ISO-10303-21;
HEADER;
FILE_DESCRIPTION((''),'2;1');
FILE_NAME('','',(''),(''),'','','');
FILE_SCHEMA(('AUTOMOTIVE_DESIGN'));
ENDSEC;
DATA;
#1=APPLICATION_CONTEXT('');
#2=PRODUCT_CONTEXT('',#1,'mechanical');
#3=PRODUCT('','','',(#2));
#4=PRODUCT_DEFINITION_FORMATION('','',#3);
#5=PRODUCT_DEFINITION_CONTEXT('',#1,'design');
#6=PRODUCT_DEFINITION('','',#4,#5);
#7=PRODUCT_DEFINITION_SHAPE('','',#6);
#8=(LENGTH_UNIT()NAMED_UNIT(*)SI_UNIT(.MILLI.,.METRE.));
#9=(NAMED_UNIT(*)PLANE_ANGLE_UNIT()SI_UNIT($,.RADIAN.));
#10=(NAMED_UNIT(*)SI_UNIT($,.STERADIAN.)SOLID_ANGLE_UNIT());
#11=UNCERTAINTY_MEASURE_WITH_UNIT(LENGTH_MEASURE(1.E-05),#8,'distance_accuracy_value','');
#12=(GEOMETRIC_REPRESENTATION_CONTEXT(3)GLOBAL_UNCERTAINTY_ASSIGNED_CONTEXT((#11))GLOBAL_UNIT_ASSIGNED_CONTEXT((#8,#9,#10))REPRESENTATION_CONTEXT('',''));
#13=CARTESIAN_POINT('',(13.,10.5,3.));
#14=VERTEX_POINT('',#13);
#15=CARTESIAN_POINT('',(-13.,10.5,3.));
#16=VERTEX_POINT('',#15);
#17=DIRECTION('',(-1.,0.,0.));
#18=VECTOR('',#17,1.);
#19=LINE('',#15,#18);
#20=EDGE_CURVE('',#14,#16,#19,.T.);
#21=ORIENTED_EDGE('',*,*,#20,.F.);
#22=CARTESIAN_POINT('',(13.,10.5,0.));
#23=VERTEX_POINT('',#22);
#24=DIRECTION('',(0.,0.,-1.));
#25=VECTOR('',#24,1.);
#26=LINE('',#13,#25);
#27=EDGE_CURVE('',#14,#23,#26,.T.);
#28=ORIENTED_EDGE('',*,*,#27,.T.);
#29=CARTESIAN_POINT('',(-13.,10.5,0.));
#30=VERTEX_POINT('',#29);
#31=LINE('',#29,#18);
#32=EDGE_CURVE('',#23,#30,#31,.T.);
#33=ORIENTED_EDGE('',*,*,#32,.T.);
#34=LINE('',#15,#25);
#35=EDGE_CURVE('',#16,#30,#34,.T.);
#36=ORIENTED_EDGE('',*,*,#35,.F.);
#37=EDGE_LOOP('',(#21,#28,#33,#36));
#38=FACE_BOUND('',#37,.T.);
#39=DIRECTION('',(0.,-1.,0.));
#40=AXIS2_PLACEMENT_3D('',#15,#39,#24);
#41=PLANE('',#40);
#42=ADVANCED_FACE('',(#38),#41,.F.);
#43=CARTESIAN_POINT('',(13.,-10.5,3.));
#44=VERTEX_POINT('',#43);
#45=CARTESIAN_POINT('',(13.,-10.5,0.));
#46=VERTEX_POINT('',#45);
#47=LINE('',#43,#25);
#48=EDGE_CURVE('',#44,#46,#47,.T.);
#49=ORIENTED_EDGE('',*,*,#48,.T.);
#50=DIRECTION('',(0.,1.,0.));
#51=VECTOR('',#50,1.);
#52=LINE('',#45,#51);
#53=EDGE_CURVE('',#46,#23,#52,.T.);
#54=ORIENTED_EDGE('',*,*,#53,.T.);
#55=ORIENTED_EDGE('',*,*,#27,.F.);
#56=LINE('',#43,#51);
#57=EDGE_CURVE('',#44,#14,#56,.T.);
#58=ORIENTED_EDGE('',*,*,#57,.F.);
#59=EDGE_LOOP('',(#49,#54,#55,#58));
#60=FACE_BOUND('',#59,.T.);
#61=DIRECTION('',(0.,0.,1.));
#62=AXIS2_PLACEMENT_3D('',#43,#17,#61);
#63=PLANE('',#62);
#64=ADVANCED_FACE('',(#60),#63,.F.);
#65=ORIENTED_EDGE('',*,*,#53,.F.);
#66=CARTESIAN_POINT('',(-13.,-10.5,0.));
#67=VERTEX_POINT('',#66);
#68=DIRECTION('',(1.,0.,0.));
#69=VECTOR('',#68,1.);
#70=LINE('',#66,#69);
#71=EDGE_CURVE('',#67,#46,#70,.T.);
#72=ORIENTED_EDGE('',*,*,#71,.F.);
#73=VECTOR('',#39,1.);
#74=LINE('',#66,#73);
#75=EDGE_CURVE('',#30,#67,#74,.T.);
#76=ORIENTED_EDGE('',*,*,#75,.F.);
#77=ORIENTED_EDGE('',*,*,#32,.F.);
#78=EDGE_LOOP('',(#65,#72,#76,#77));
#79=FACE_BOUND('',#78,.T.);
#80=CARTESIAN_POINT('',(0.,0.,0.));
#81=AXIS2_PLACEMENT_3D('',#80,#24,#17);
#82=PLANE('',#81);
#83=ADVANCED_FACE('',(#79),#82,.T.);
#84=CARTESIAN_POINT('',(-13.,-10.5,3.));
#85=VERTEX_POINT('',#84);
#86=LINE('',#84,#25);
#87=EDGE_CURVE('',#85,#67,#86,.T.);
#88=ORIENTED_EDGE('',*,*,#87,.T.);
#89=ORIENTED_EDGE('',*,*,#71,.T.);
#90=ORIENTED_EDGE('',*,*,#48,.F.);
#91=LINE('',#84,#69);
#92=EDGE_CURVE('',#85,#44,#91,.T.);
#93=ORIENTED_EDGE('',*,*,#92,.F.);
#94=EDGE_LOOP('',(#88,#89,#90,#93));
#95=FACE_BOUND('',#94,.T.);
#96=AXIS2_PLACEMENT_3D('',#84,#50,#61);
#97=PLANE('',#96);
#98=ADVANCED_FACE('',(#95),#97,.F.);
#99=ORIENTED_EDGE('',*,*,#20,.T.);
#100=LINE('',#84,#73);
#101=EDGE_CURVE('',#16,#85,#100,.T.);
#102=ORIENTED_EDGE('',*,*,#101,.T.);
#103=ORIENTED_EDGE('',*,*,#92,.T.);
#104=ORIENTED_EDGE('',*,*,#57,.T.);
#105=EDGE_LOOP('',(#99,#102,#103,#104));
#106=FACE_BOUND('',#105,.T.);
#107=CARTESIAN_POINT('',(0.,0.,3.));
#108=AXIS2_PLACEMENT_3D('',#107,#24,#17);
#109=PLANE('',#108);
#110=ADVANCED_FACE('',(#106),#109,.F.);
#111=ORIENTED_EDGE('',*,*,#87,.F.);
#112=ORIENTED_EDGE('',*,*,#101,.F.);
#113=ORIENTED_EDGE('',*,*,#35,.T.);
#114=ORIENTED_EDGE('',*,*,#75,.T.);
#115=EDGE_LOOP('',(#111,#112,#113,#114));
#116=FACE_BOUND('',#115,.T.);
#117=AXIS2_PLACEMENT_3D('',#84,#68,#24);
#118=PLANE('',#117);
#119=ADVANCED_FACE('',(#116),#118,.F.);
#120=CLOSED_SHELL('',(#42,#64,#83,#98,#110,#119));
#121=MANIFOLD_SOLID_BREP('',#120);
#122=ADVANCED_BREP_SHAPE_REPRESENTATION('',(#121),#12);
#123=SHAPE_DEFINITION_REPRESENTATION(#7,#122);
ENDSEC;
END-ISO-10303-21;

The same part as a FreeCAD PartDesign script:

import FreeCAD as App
import Part
import Sketcher

V = App.Vector
Q = App.Units.Quantity

doc = App.newDocument("Part")
body = doc.addObject("PartDesign::Body", "Body")

# Sketch on XY plane
sketch1 = body.newObject("Sketcher::SketchObject", "Sketch")
sketch1.AttachmentSupport = (doc.getObject("XY_Plane"), [""])
sketch1.MapMode = "FlatFace"
sketch1.addGeometry(Part.LineSegment(V(-13, 10.5, 0), V(-13, -10.5, 0)), False)
sketch1.addGeometry(Part.LineSegment(V(-13, -10.5, 0), V(13, -10.5, 0)), False)
sketch1.addGeometry(Part.LineSegment(V(13, -10.5, 0), V(13, 10.5, 0)), False)
sketch1.addGeometry(Part.LineSegment(V(13, 10.5, 0), V(-13, 10.5, 0)), False)
sketch1.addConstraint(Sketcher.Constraint("Coincident", 0, 2, 1, 1))
sketch1.addConstraint(Sketcher.Constraint("Coincident", 1, 2, 2, 1))
sketch1.addConstraint(Sketcher.Constraint("Coincident", 2, 2, 3, 1))
sketch1.addConstraint(Sketcher.Constraint("Coincident", 3, 2, 0, 1))
sketch1.addConstraint(Sketcher.Constraint("Vertical", 0))
sketch1.addConstraint(Sketcher.Constraint("Horizontal", 1))
sketch1.addConstraint(Sketcher.Constraint("Vertical", 2))
sketch1.addConstraint(Sketcher.Constraint("Horizontal", 3))
sketch1.addConstraint(Sketcher.Constraint("Symmetric", 0, 2, 2, 2, -1, 1))
sketch1.addConstraint(Sketcher.Constraint("DistanceX", 1, 1, 1, 2, Q("26 mm")))
sketch1.addConstraint(Sketcher.Constraint("DistanceY", 0, 2, 0, 1, Q("21 mm")))
pad1 = body.newObject("PartDesign::Pad", "Pad")
pad1.Profile = sketch1
pad1.Length = 3

doc.recompute()
